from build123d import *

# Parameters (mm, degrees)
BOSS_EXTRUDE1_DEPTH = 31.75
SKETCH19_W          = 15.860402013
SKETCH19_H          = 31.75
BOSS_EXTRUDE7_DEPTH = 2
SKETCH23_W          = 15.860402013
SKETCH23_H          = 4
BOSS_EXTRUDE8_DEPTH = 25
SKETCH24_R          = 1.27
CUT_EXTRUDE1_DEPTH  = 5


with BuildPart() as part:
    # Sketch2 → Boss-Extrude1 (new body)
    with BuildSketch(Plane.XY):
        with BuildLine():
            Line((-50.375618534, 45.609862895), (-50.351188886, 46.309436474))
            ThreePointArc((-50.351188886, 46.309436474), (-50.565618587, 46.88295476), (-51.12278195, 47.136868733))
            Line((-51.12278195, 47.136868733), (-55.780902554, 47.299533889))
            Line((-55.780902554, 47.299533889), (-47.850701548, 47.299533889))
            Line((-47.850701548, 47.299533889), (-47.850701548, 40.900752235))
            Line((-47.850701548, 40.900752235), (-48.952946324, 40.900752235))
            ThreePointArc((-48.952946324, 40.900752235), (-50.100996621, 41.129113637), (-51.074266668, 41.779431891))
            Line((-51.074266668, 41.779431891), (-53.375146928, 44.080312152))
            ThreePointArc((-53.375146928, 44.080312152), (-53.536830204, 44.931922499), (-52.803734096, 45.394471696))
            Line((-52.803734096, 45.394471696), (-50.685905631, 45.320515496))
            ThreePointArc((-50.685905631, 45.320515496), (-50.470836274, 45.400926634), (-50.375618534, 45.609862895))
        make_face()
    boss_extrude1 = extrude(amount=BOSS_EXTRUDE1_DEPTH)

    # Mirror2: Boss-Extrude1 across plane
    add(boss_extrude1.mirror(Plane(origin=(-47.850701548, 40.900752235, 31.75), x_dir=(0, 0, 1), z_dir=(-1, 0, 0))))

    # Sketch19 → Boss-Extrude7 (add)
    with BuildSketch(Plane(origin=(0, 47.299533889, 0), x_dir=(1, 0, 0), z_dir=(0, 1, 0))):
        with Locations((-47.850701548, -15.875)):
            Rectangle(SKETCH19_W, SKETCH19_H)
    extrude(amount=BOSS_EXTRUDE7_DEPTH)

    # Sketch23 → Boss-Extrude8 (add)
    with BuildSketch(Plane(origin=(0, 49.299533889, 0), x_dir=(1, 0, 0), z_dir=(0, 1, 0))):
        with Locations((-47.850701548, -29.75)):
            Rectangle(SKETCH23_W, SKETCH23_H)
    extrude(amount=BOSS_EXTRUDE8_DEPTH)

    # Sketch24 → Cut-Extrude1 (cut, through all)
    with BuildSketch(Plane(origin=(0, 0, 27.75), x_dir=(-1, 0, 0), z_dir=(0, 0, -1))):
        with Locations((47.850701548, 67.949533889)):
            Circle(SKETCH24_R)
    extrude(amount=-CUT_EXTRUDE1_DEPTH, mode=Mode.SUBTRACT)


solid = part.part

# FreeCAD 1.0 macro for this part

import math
import FreeCAD as App
import Part
import Sketcher
Q = App.Units.Quantity


def add_polygon(sketch, points):
    """Adds a closed chain of lines whose ends are joined by coincident constraints."""
    first, n = sketch.GeometryCount, len(points)
    for a, b in zip(points, points[1:] + points[:1]):
        sketch.addGeometry(Part.LineSegment(App.Vector(*a, 0), App.Vector(*b, 0)), False)
    for i in range(n):
        sketch.addConstraint(Sketcher.Constraint("Coincident", first + i, 2, first + (i + 1) % n, 1))

doc = App.newDocument("Part")
body = doc.addObject("PartDesign::Body", "Body")

# Sketch on XY plane
sketch1 = body.newObject("Sketcher::SketchObject", "Sketch")
sketch1.AttachmentSupport = (doc.getObject("XY_Plane"), [""])
sketch1.MapMode = "FlatFace"
sketch1.addGeometry(Part.LineSegment(App.Vector(-50.35, 46.31, 0), App.Vector(-50.38, 45.61, 0)), False)
sketch1.addGeometry(Part.ArcOfCircle(Part.Circle(App.Vector(-50.68, 45.62, 0), App.Vector(0, 0, 1), 0.3), math.radians(-92), math.radians(-2)), False)
sketch1.addGeometry(Part.LineSegment(App.Vector(-50.69, 45.32, 0), App.Vector(-52.8, 45.39, 0)), False)
sketch1.addGeometry(Part.ArcOfCircle(Part.Circle(App.Vector(-52.83, 44.62, 0), App.Vector(0, 0, 1), 0.77), math.radians(88), math.radians(225)), False)
sketch1.addGeometry(Part.LineSegment(App.Vector(-53.38, 44.08, 0), App.Vector(-51.07, 41.78, 0)), False)
sketch1.addGeometry(Part.ArcOfCircle(Part.Circle(App.Vector(-48.95, 43.9, 0), App.Vector(0, 0, 1), 3), math.radians(-135), math.radians(-90)), False)
sketch1.addGeometry(Part.LineSegment(App.Vector(-48.95, 40.9, 0), App.Vector(-47.85, 40.9, 0)), False)
sketch1.addGeometry(Part.LineSegment(App.Vector(-47.85, 40.9, 0), App.Vector(-47.85, 47.3, 0)), False)
sketch1.addGeometry(Part.LineSegment(App.Vector(-47.85, 47.3, 0), App.Vector(-55.78, 47.3, 0)), False)
sketch1.addGeometry(Part.LineSegment(App.Vector(-55.78, 47.3, 0), App.Vector(-51.12, 47.14, 0)), False)
sketch1.addGeometry(Part.ArcOfCircle(Part.Circle(App.Vector(-51.15, 46.34, 0), App.Vector(0, 0, 1), 0.8), math.radians(-2), math.radians(88)), False)
sketch1.addConstraint(Sketcher.Constraint("Tangent", 0, 2, 1, 2))
sketch1.addConstraint(Sketcher.Constraint("Tangent", 1, 1, 2, 1))
sketch1.addConstraint(Sketcher.Constraint("Tangent", 2, 2, 3, 1))
sketch1.addConstraint(Sketcher.Constraint("Tangent", 3, 2, 4, 1))
sketch1.addConstraint(Sketcher.Constraint("Tangent", 4, 2, 5, 1))
sketch1.addConstraint(Sketcher.Constraint("Tangent", 5, 2, 6, 1))
sketch1.addConstraint(Sketcher.Constraint("Coincident", 6, 2, 7, 1))
sketch1.addConstraint(Sketcher.Constraint("Coincident", 7, 2, 8, 1))
sketch1.addConstraint(Sketcher.Constraint("Coincident", 8, 2, 9, 1))
sketch1.addConstraint(Sketcher.Constraint("Tangent", 9, 2, 10, 2))
sketch1.addConstraint(Sketcher.Constraint("Tangent", 10, 1, 0, 1))
sketch1.addConstraint(Sketcher.Constraint("Horizontal", 6))
sketch1.addConstraint(Sketcher.Constraint("Vertical", 7))
sketch1.addConstraint(Sketcher.Constraint("Horizontal", 8))
sketch1.addConstraint(Sketcher.Constraint("Perpendicular", 0, 2))
sketch1.addConstraint(Sketcher.Constraint("Parallel", 2, 9))
sketch1.addConstraint(Sketcher.Constraint("Radius", 5, Q("3 mm")))
sketch1.addConstraint(Sketcher.Constraint("Radius", 1, Q("0.3 mm")))
sketch1.addConstraint(Sketcher.Constraint("Radius", 10, Q("0.8 mm")))
sketch1.addConstraint(Sketcher.Constraint("Angle", 0, Q("-92 deg")))
sketch1.addConstraint(Sketcher.Constraint("Angle", 4, Q("-45 deg")))
sketch1.addConstraint(Sketcher.Constraint("Distance", 0, Q("0.7 mm")))
sketch1.addConstraint(Sketcher.Constraint("DistanceX", 10, 3, 7, 2, Q("3.3 mm")))
sketch1.addConstraint(Sketcher.Constraint("Radius", 3, Q("0.770092 mm")))
sketch1.addConstraint(Sketcher.Constraint("DistanceX", 8, 2, 8, 1, Q("7.930201 mm")))
sketch1.addConstraint(Sketcher.Constraint("DistanceY", 7, 1, 7, 2, Q("6.398782 mm")))
sketch1.addConstraint(Sketcher.Constraint("DistanceX", 10, 3, -1, 1, Q("51.150702 mm")))
sketch1.addConstraint(Sketcher.Constraint("DistanceX", 2, 2, 1, 3, Q("2.128298 mm")))
sketch1.addConstraint(Sketcher.Constraint("DistanceY", -1, 1, 3, 3, Q("44.624849 mm")))
pad1 = body.newObject("PartDesign::Pad", "Pad")
pad1.Profile = sketch1
pad1.Length = 31.75
doc.recompute()

datumplane = body.newObject("PartDesign::Plane", "DatumPlane")
datumplane.AttachmentSupport = (doc.getObject("YZ_Plane"), [""])
datumplane.MapMode = "FlatFace"
datumplane.AttachmentOffset = App.Placement(App.Vector(0, 0, -47.850702), App.Rotation())
mirrored = body.newObject("PartDesign::Mirrored", "Mirrored")
mirrored.Originals = [pad1]
mirrored.MirrorPlane = (datumplane, [""])
body.Tip = mirrored

# Sketch on XZ plane
sketch2 = body.newObject("Sketcher::SketchObject", "Sketch001")
sketch2.AttachmentSupport = (doc.getObject("XZ_Plane"), [""])
sketch2.MapMode = "FlatFace"
sketch2.AttachmentOffset = App.Placement(App.Vector(0, 0, -47.299534), App.Rotation())
add_polygon(sketch2, [(-56, 0), (-56, 32), (-40, 32), (-40, 0)])  # lines 0-3
sketch2.addConstraint(Sketcher.Constraint("Vertical", 0))
sketch2.addConstraint(Sketcher.Constraint("Horizontal", 1))
sketch2.addConstraint(Sketcher.Constraint("Vertical", 2))
sketch2.addConstraint(Sketcher.Constraint("Horizontal", 3))
sketch2.addConstraint(Sketcher.Constraint("PointOnObject", 2, 2, -1))
sketch2.addConstraint(Sketcher.Constraint("DistanceY", 0, 1, 0, 2, Q("31.75 mm")))
sketch2.addConstraint(Sketcher.Constraint("DistanceX", 1, 2, -1, 1, Q("39.920501 mm")))
sketch2.addConstraint(Sketcher.Constraint("DistanceX", 1, 1, 1, 2, Q("15.860402 mm")))
pad2 = body.newObject("PartDesign::Pad", "Pad001")
pad2.Profile = sketch2
pad2.Length = 2
pad2.Reversed = True

# Sketch on XZ plane
sketch3 = body.newObject("Sketcher::SketchObject", "Sketch002")
sketch3.AttachmentSupport = (doc.getObject("XZ_Plane"), [""])
sketch3.MapMode = "FlatFace"
sketch3.AttachmentOffset = App.Placement(App.Vector(0, 0, -49.299534), App.Rotation())
add_polygon(sketch3, [(-55.8, 27.8), (-55.8, 31.8), (-39.9, 31.8), (-39.9, 27.8)])  # lines 0-3
sketch3.addConstraint(Sketcher.Constraint("Vertical", 0))
sketch3.addConstraint(Sketcher.Constraint("Horizontal", 1))
sketch3.addConstraint(Sketcher.Constraint("Vertical", 2))
sketch3.addConstraint(Sketcher.Constraint("Horizontal", 3))
sketch3.addConstraint(Sketcher.Constraint("DistanceY", 0, 1, 0, 2, Q("4 mm")))
sketch3.addConstraint(Sketcher.Constraint("DistanceY", -1, 1, 0, 2, Q("31.75 mm")))
sketch3.addConstraint(Sketcher.Constraint("DistanceX", 1, 2, -1, 1, Q("39.920501 mm")))
sketch3.addConstraint(Sketcher.Constraint("DistanceX", 1, 1, 1, 2, Q("15.860402 mm")))
pad3 = body.newObject("PartDesign::Pad", "Pad002")
pad3.Profile = sketch3
pad3.Length = 25
pad3.Reversed = True

# Sketch on XY plane
sketch4 = body.newObject("Sketcher::SketchObject", "Sketch003")
sketch4.AttachmentSupport = (doc.getObject("XY_Plane"), [""])
sketch4.MapMode = "FlatFace"
sketch4.AttachmentOffset = App.Placement(App.Vector(0, 0, 27.75), App.Rotation())
sketch4.addGeometry(Part.Circle(App.Vector(-47.9, 67.9, 0), App.Vector(0, 0, 1), 1.3), False)
sketch4.addConstraint(Sketcher.Constraint("Diameter", 0, Q("2.54 mm")))
sketch4.addConstraint(Sketcher.Constraint("DistanceX", 0, 3, -1, 1, Q("47.850702 mm")))
sketch4.addConstraint(Sketcher.Constraint("DistanceY", -1, 1, 0, 3, Q("67.949534 mm")))
pocket1 = body.newObject("PartDesign::Pocket", "Pocket")
pocket1.Profile = sketch4
pocket1.Type = "ThroughAll"
pocket1.Reversed = True

doc.recompute()
